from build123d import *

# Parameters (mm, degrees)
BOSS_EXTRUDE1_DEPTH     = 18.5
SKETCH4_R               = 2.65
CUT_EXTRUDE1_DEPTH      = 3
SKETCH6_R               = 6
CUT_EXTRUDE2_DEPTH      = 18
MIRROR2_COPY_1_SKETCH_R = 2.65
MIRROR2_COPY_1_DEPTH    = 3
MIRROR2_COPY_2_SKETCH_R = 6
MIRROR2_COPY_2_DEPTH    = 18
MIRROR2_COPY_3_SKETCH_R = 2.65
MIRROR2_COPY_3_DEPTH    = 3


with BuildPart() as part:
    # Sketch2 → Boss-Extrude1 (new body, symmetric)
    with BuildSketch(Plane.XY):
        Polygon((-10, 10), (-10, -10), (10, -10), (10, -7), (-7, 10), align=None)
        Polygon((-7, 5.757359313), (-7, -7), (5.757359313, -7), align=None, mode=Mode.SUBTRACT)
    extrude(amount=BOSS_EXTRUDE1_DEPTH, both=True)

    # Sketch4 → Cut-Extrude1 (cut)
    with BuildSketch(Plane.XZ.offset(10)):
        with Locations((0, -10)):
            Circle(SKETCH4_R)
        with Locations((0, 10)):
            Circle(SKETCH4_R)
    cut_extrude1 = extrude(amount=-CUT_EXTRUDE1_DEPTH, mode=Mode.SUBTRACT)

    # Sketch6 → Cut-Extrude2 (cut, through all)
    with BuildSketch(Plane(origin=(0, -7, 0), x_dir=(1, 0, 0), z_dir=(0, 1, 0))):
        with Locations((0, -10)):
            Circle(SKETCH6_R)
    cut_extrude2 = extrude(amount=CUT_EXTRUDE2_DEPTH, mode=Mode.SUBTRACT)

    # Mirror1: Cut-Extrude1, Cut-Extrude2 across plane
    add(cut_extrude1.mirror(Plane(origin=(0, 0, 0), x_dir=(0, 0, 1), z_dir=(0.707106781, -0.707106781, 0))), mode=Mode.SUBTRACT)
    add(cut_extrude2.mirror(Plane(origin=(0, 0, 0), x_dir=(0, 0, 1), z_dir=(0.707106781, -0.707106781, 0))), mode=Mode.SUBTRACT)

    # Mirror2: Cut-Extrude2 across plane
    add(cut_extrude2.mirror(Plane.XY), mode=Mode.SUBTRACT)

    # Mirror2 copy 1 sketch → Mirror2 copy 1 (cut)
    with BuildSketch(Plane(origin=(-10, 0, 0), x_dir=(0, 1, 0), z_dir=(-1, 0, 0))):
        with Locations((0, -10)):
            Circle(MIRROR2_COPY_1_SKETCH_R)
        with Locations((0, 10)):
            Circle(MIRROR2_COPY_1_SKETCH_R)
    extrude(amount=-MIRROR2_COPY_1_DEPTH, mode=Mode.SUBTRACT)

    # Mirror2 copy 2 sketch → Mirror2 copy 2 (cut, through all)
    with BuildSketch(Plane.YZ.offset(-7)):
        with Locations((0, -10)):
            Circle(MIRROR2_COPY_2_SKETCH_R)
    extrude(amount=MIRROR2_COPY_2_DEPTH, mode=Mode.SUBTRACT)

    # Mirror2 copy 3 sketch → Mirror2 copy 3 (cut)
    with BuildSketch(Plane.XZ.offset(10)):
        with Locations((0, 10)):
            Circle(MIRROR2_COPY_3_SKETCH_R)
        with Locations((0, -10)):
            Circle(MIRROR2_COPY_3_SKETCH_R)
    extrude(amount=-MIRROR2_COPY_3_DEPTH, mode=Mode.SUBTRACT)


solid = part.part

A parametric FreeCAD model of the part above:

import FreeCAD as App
import Part
import Sketcher

V = App.Vector


def add_polygon(sketch, points):
    """Adds a closed chain of lines whose ends are joined by coincident constraints."""
    first, n = sketch.GeometryCount, len(points)
    for a, b in zip(points, points[1:] + points[:1]):
        sketch.addGeometry(Part.LineSegment(App.Vector(*a, 0), App.Vector(*b, 0)), False)
    for i in range(n):
        sketch.addConstraint(Sketcher.Constraint("Coincident", first + i, 2, first + (i + 1) % n, 1))

doc = App.newDocument("Part")
body = doc.addObject("PartDesign::Body", "Body")

sketch1 = doc.addObject("Sketcher::SketchObject", "Sketch")
body.addObject(sketch1)
sketch1.AttachmentSupport = (doc.XY_Plane, [""])
sketch1.MapMode = "FlatFace"
add_polygon(sketch1, [(-10, 10), (-10, -10), (10, -10), (10, -7), (-7, 10)])
add_polygon(sketch1, [(-7, -7), (-7, 5.757359), (5.757359, -7)])
sketch1.addConstraint([
    Sketcher.Constraint("Vertical", 0),
    Sketcher.Constraint("Horizontal", 1),
    Sketcher.Constraint("Vertical", 2),
    Sketcher.Constraint("Horizontal", 4),
    Sketcher.Constraint("Vertical", 5),
    Sketcher.Constraint("Horizontal", 7),
    Sketcher.Constraint("Symmetric", 1, 2, 4, 2, -1, 1),
    Sketcher.Constraint("Parallel", 3, 6),
    Sketcher.Constraint("Horizontal", 2, 2, 6, 2),
    Sketcher.Constraint("Vertical", 3, 2, 5, 2),
    Sketcher.Constraint("Equal", 1, 0),
    Sketcher.Constraint("Equal", 4, 2),
    Sketcher.Constraint("DistanceX", 1, 1, 1, 2, 20.0),
    Sketcher.Constraint("DistanceX", 4, 2, 4, 1, 3.0),
    Sketcher.Constraint("DistanceX", 7, 2, 7, 1, 12.757359),
])
pad1 = doc.addObject("PartDesign::Pad", "Pad")
body.addObject(pad1)
pad1.Profile = sketch1
pad1.Length = 37
pad1.Midplane = True

sketch2 = doc.addObject("Sketcher::SketchObject", "Sketch001")
body.addObject(sketch2)
sketch2.AttachmentSupport = (doc.XZ_Plane, [""])
sketch2.MapMode = "FlatFace"
sketch2.AttachmentOffset = App.Placement(V(0, 0, 10), App.Rotation())
sketch2.addGeometry([
    Part.Circle(V(0, -10, 0), V(0, 0, 1), 2.65),
    Part.Circle(V(0, 10, 0), V(0, 0, 1), 2.65),
], False)
sketch2.addConstraint([
    Sketcher.Constraint("Equal", 0, 1),
    Sketcher.Constraint("Symmetric", 0, 3, 1, 3, -1, 1),
    Sketcher.Constraint("PointOnObject", 0, 3, -2),
    Sketcher.Constraint("Diameter", 0, 5.3),
    Sketcher.Constraint("DistanceY", 0, 3, -1, 1, 10.0),
])
pocket1 = doc.addObject("PartDesign::Pocket", "Pocket")
body.addObject(pocket1)
pocket1.Profile = sketch2
pocket1.Length = 3

sketch3 = doc.addObject("Sketcher::SketchObject", "Sketch002")
body.addObject(sketch3)
sketch3.AttachmentSupport = (doc.XZ_Plane, [""])
sketch3.MapMode = "FlatFace"
sketch3.AttachmentOffset = App.Placement(V(0, 0, 7), App.Rotation())
sketch3.addGeometry(Part.Circle(V(0, 10, 0), V(0, 0, 1), 6), False)
sketch3.addConstraint([
    Sketcher.Constraint("PointOnObject", 0, 3, -2),
    Sketcher.Constraint("Diameter", 0, 12.0),
    Sketcher.Constraint("DistanceY", -1, 1, 0, 3, 10.0),
])
pocket2 = doc.addObject("PartDesign::Pocket", "Pocket001")
body.addObject(pocket2)
pocket2.Profile = sketch3
pocket2.Type = "ThroughAll"
doc.recompute()

datumplane = doc.addObject("PartDesign::Plane", "DatumPlane")
body.addObject(datumplane)
datumplane.Placement = App.Placement(V(0, 0, 0), App.Rotation(V(-0.707106781, -0.707106781, 0), V(0, 0, -1), V(0.707106781, -0.707106781, 0), "ZXY"))
mirrored = doc.addObject("PartDesign::Mirrored", "Mirrored")
body.addObject(mirrored)
mirrored.Originals = [pocket1, pocket2]
mirrored.MirrorPlane = (datumplane, [""])
body.Tip = mirrored
doc.recompute()

mirrored2 = doc.addObject("PartDesign::Mirrored", "Mirrored001")
body.addObject(mirrored2)
mirrored2.Originals = [pocket2]
mirrored2.MirrorPlane = (doc.XY_Plane, [""])
body.Tip = mirrored2

sketch4 = doc.addObject("Sketcher::SketchObject", "Sketch003")
body.addObject(sketch4)
sketch4.AttachmentSupport = (doc.YZ_Plane, [""])
sketch4.MapMode = "FlatFace"
sketch4.AttachmentOffset = App.Placement(V(0, 0, -10), App.Rotation())
sketch4.addGeometry([
    Part.Circle(V(0, 10, 0), V(0, 0, 1), 2.65),
    Part.Circle(V(0, -10, 0), V(0, 0, 1), 2.65),
], False)
sketch4.addConstraint([
    Sketcher.Constraint("Equal", 0, 1),
    Sketcher.Constraint("Symmetric", 0, 3, 1, 3, -1, 1),
    Sketcher.Constraint("PointOnObject", 0, 3, -2),
    Sketcher.Constraint("Diameter", 0, 5.3),
    Sketcher.Constraint("DistanceY", -1, 1, 0, 3, 10.0),
])
pocket3 = doc.addObject("PartDesign::Pocket", "Pocket002")
body.addObject(pocket3)
pocket3.Profile = sketch4
pocket3.Length = 3
pocket3.Reversed = True

sketch5 = doc.addObject("Sketcher::SketchObject", "Sketch004")
body.addObject(sketch5)
sketch5.AttachmentSupport = (doc.YZ_Plane, [""])
sketch5.MapMode = "FlatFace"
sketch5.AttachmentOffset = App.Placement(V(0, 0, -7), App.Rotation())
sketch5.addGeometry(Part.Circle(V(0, -10, 0), V(0, 0, 1), 6), False)
sketch5.addConstraint([
    Sketcher.Constraint("PointOnObject", 0, 3, -2),
    Sketcher.Constraint("Diameter", 0, 12.0),
    Sketcher.Constraint("DistanceY", 0, 3, -1, 1, 10.0),
])
pocket4 = doc.addObject("PartDesign::Pocket", "Pocket003")
body.addObject(pocket4)
pocket4.Profile = sketch5
pocket4.Type = "ThroughAll"
pocket4.Reversed = True

sketch6 = doc.addObject("Sketcher::SketchObject", "Sketch005")
body.addObject(sketch6)
sketch6.AttachmentSupport = (doc.XZ_Plane, [""])
sketch6.MapMode = "FlatFace"
sketch6.AttachmentOffset = App.Placement(V(0, 0, 10), App.Rotation())
sketch6.addGeometry([
    Part.Circle(V(0, 10, 0), V(0, 0, 1), 2.65),
    Part.Circle(V(0, -10, 0), V(0, 0, 1), 2.65),
], False)
sketch6.addConstraint([
    Sketcher.Constraint("Equal", 0, 1),
    Sketcher.Constraint("Symmetric", 0, 3, 1, 3, -1, 1),
    Sketcher.Constraint("PointOnObject", 0, 3, -2),
    Sketcher.Constraint("Diameter", 0, 5.3),
    Sketcher.Constraint("DistanceY", -1, 1, 0, 3, 10.0),
])
pocket5 = doc.addObject("PartDesign::Pocket", "Pocket004")
body.addObject(pocket5)
pocket5.Profile = sketch6
pocket5.Length = 3

doc.recompute()
